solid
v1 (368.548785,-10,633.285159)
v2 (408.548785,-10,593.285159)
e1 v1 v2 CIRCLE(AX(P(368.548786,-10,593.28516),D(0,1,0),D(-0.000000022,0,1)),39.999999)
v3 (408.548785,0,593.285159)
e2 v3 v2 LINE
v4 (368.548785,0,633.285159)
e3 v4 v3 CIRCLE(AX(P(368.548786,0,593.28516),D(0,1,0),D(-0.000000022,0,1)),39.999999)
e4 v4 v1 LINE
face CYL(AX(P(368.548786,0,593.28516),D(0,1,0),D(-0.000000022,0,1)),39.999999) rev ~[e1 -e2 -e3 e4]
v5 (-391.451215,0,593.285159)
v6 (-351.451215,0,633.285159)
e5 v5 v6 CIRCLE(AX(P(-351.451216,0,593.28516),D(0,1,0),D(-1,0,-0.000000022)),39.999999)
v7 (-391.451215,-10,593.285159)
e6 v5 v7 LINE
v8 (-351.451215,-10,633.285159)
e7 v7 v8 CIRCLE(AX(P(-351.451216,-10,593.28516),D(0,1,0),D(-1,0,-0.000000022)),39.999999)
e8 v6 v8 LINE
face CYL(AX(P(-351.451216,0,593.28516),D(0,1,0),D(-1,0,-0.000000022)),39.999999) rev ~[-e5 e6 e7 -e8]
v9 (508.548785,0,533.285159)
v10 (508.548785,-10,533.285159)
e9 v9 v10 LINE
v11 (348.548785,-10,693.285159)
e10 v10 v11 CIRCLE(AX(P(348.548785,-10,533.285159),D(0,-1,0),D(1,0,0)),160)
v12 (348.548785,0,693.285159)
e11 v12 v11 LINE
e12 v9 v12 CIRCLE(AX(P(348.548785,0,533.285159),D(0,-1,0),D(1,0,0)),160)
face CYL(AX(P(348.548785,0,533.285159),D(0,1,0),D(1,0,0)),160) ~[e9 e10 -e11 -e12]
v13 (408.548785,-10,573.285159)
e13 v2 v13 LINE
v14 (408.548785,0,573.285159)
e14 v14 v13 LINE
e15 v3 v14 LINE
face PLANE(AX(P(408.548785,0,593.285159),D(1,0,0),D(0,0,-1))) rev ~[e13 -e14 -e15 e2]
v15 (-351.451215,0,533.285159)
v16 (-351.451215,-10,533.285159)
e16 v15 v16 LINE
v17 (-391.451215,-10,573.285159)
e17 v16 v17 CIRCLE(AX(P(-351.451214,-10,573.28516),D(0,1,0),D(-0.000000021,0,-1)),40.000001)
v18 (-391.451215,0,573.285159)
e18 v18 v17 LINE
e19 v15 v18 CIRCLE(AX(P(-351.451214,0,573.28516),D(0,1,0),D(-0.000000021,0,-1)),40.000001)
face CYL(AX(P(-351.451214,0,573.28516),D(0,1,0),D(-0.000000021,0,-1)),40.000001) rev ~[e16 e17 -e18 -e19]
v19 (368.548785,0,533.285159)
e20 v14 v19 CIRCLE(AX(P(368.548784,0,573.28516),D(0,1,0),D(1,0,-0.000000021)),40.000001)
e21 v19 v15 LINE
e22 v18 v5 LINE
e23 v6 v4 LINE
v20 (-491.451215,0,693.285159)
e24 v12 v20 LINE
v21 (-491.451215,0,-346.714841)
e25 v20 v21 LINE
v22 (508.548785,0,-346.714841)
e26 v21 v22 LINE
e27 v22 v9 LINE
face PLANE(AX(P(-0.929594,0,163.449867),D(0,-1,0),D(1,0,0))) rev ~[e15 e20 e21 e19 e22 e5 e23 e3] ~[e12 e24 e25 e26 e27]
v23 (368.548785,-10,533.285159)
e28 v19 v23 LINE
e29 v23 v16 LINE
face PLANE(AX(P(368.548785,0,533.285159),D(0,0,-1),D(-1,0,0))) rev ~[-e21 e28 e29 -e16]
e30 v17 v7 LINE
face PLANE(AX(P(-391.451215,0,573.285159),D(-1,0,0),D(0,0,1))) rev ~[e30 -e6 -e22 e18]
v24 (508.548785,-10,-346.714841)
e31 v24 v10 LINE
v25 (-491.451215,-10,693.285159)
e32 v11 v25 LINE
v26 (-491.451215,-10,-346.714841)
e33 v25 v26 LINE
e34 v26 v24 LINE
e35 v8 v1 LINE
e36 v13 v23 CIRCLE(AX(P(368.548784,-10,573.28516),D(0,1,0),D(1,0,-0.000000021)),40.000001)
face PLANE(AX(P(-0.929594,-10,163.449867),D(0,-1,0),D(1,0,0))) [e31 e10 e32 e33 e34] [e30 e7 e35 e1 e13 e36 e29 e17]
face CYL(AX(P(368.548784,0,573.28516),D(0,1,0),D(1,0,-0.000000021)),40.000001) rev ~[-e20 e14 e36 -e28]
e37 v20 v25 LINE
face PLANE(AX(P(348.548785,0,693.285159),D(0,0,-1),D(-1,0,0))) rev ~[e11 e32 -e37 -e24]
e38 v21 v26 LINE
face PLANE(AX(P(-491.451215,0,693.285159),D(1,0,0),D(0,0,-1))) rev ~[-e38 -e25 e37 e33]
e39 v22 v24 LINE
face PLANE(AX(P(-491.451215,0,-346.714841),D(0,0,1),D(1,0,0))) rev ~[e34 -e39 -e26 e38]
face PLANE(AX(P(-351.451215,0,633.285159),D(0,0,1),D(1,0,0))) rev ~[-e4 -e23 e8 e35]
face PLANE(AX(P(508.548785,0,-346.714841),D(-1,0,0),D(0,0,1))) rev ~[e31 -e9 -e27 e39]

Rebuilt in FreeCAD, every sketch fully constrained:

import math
import FreeCAD as App
import Part
import Sketcher

doc = App.newDocument("Part")
body = doc.addObject("PartDesign::Body", "Body")

sketch1 = body.newObject("Sketcher::SketchObject", "Sketch")
sketch1.AttachmentSupport = (doc.getObject("XZ_Plane"), [""])
sketch1.MapMode = "FlatFace"
sketch1.addGeometry(Part.LineSegment(App.Vector(349, 693, 0), App.Vector(-491, 693, 0)), False)
sketch1.addGeometry(Part.LineSegment(App.Vector(-491, 693, 0), App.Vector(-491, -347, 0)), False)
sketch1.addGeometry(Part.LineSegment(App.Vector(-491, -347, 0), App.Vector(509, -347, 0)), False)
sketch1.addGeometry(Part.LineSegment(App.Vector(509, -347, 0), App.Vector(509, 533, 0)), False)
sketch1.addGeometry(Part.ArcOfCircle(Part.Circle(App.Vector(349, 533, 0), App.Vector(0, 0, 1), 160), math.radians(0), math.radians(90)), False)
sketch1.addGeometry(Part.LineSegment(App.Vector(-391, 573, 0), App.Vector(-391, 593, 0)), False)
sketch1.addGeometry(Part.ArcOfCircle(Part.Circle(App.Vector(-351, 593, 0), App.Vector(0, 0, 1), 40), math.radians(90), math.radians(180)), False)
sketch1.addGeometry(Part.LineSegment(App.Vector(-351, 633, 0), App.Vector(369, 633, 0)), False)
sketch1.addGeometry(Part.ArcOfCircle(Part.Circle(App.Vector(369, 593, 0), App.Vector(0, 0, 1), 40), math.radians(0), math.radians(90)), False)
sketch1.addGeometry(Part.LineSegment(App.Vector(409, 593, 0), App.Vector(409, 573, 0)), False)
sketch1.addGeometry(Part.ArcOfCircle(Part.Circle(App.Vector(369, 573, 0), App.Vector(0, 0, 1), 40), math.radians(-90), math.radians(0)), False)
sketch1.addGeometry(Part.LineSegment(App.Vector(369, 533, 0), App.Vector(-351, 533, 0)), False)
sketch1.addGeometry(Part.ArcOfCircle(Part.Circle(App.Vector(-351, 573, 0), App.Vector(0, 0, 1), 40), math.radians(-180), math.radians(-90)), False)
sketch1.addConstraint(Sketcher.Constraint("Coincident", 0, 2, 1, 1))
sketch1.addConstraint(Sketcher.Constraint("Coincident", 1, 2, 2, 1))
sketch1.addConstraint(Sketcher.Constraint("Coincident", 2, 2, 3, 1))
sketch1.addConstraint(Sketcher.Constraint("Tangent", 3, 2, 4, 1))
sketch1.addConstraint(Sketcher.Constraint("Tangent", 4, 2, 0, 1))
sketch1.addConstraint(Sketcher.Constraint("Tangent", 5, 2, 6, 2))
sketch1.addConstraint(Sketcher.Constraint("Tangent", 6, 1, 7, 1))
sketch1.addConstraint(Sketcher.Constraint("Tangent", 7, 2, 8, 2))
sketch1.addConstraint(Sketcher.Constraint("Tangent", 8, 1, 9, 1))
sketch1.addConstraint(Sketcher.Constraint("Tangent", 9, 2, 10, 2))
sketch1.addConstraint(Sketcher.Constraint("Tangent", 10, 1, 11, 1))
sketch1.addConstraint(Sketcher.Constraint("Tangent", 11, 2, 12, 2))
sketch1.addConstraint(Sketcher.Constraint("Tangent", 12, 1, 5, 1))
sketch1.addConstraint(Sketcher.Constraint("Horizontal", 0))
sketch1.addConstraint(Sketcher.Constraint("Vertical", 1))
sketch1.addConstraint(Sketcher.Constraint("Horizontal", 2))
sketch1.addConstraint(Sketcher.Constraint("Vertical", 3))
sketch1.addConstraint(Sketcher.Constraint("Vertical", 5))
sketch1.addConstraint(Sketcher.Constraint("Horizontal", 7))
sketch1.addConstraint(Sketcher.Constraint("Vertical", 9))
sketch1.addConstraint(Sketcher.Constraint("Horizontal", 11))
sketch1.addConstraint(Sketcher.Constraint("Equal", 6, 8))
sketch1.addConstraint(Sketcher.Constraint("Equal", 8, 10))
sketch1.addConstraint(Sketcher.Constraint("Equal", 10, 12))
sketch1.addConstraint(Sketcher.Constraint("Horizontal", 3, 2, 10, 1))
sketch1.addConstraint(Sketcher.Constraint("Radius", 4, 160.0))
sketch1.addConstraint(Sketcher.Constraint("Radius", 6, 39.999999))
sketch1.addConstraint(Sketcher.Constraint("DistanceX", 0, 2, 0, 1, 840.0))
sketch1.addConstraint(Sketcher.Constraint("DistanceX", 7, 1, 7, 2, 720.0))
sketch1.addConstraint(Sketcher.Constraint("DistanceY", 1, 2, 1, 1, 1040.0))
sketch1.addConstraint(Sketcher.Constraint("DistanceY", 5, 1, 5, 2, 20.0))
sketch1.addConstraint(Sketcher.Constraint("DistanceX", 6, 3, 4, 3, 700.000001))
sketch1.addConstraint(Sketcher.Constraint("DistanceY", -1, 1, 4, 3, 533.285159))
sketch1.addConstraint(Sketcher.Constraint("DistanceX", -1, 1, 4, 3, 348.548785))
pad1 = body.newObject("PartDesign::Pad", "Pad")
pad1.Profile = sketch1
pad1.Length = 10

doc.recompute()
